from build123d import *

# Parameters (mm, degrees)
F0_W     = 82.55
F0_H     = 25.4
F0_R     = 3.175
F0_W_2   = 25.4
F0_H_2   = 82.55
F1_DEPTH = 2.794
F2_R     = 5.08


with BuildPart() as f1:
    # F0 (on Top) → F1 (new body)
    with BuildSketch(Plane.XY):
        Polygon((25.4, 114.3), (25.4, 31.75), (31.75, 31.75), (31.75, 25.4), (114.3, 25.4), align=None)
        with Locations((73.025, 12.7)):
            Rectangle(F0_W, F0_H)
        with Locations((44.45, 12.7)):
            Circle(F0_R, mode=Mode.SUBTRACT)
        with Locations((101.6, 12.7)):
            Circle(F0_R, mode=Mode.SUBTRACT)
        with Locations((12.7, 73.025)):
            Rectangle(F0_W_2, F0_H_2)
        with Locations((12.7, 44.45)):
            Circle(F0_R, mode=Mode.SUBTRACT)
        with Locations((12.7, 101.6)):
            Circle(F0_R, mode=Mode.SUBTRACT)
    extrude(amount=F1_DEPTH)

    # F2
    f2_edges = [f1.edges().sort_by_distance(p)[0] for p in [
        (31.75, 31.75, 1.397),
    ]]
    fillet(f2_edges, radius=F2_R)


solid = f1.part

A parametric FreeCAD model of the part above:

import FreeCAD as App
import Part
import Sketcher

V = App.Vector
Q = App.Units.Quantity


def edges_at(feature, points):
    """Names of the edges that pass closest to the given points."""
    edges = feature.Shape.Edges
    near = lambda p: min(range(len(edges)), key=lambda i: edges[i].distToShape(Part.Vertex(*p))[0])
    return sorted({f"Edge{near(p) + 1}" for p in points})

doc = App.newDocument("Part")
params = doc.addObject("Spreadsheet::Sheet", "Params")
for row, (alias, value) in enumerate([
    ("sketch1_diameter", "0.25 in"),
    ("sketch1_width", "1 in"),
    ("sketch1_width2", "1.25 in"),
    ("sketch1_width3", "3.25 in"),
    ("pad1_length", "0.11 in"),
    ("fillet_radius", "0.2 in"),
], start=1):
    params.set(f"A{row}", alias)
    params.set(f"B{row}", "=" + value)
    params.setAlias(f"B{row}", alias)

body = doc.addObject("PartDesign::Body", "Body")

sketch1 = doc.addObject("Sketcher::SketchObject", "Sketch")
body.addObject(sketch1)
sketch1.AttachmentSupport = (doc.XY_Plane, [""])
sketch1.MapMode = "FlatFace"
sketch1.addGeometry(Part.LineSegment(V(114.3, 25.4, 0), V(25.4, 114.3, 0)), False)
sketch1.addGeometry(Part.LineSegment(V(25.4, 114.3, 0), V(0, 114.3, 0)), False)
sketch1.addGeometry(Part.LineSegment(V(0, 114.3, 0), V(0, 31.75, 0)), False)
sketch1.addGeometry(Part.LineSegment(V(0, 31.75, 0), V(31.75, 31.75, 0)), False)
sketch1.addGeometry(Part.LineSegment(V(31.75, 31.75, 0), V(31.75, 0, 0)), False)
sketch1.addGeometry(Part.LineSegment(V(31.75, 0, 0), V(114.3, 0, 0)), False)
sketch1.addGeometry(Part.LineSegment(V(114.3, 0, 0), V(114.3, 25.4, 0)), False)
sketch1.addGeometry(Part.Circle(V(44.45, 12.7, 0), V(0, 0, 1), 3.175), False)
sketch1.addGeometry(Part.Circle(V(12.7, 44.45, 0), V(0, 0, 1), 3.175), False)
sketch1.addGeometry(Part.Circle(V(101.6, 12.7, 0), V(0, 0, 1), 3.175), False)
sketch1.addGeometry(Part.Circle(V(12.7, 101.6, 0), V(0, 0, 1), 3.175), False)
sketch1.addConstraint(Sketcher.Constraint("Coincident", 0, 2, 1, 1))
sketch1.addConstraint(Sketcher.Constraint("Coincident", 1, 2, 2, 1))
sketch1.addConstraint(Sketcher.Constraint("Coincident", 2, 2, 3, 1))
sketch1.addConstraint(Sketcher.Constraint("Coincident", 3, 2, 4, 1))
sketch1.addConstraint(Sketcher.Constraint("Coincident", 4, 2, 5, 1))
sketch1.addConstraint(Sketcher.Constraint("Coincident", 5, 2, 6, 1))
sketch1.addConstraint(Sketcher.Constraint("Coincident", 6, 2, 0, 1))
sketch1.addConstraint(Sketcher.Constraint("Horizontal", 1))
sketch1.addConstraint(Sketcher.Constraint("Vertical", 2))
sketch1.addConstraint(Sketcher.Constraint("Horizontal", 3))
sketch1.addConstraint(Sketcher.Constraint("Vertical", 4))
sketch1.addConstraint(Sketcher.Constraint("Horizontal", 5))
sketch1.addConstraint(Sketcher.Constraint("Vertical", 6))
sketch1.addConstraint(Sketcher.Constraint("Equal", 7, 8))
sketch1.addConstraint(Sketcher.Constraint("Equal", 8, 9))
sketch1.addConstraint(Sketcher.Constraint("Equal", 9, 10))
sketch1.addConstraint(Sketcher.Constraint("PointOnObject", 1, 2, -2))
sketch1.addConstraint(Sketcher.Constraint("PointOnObject", 4, 2, -1))
sketch1.addConstraint(Sketcher.Constraint("Horizontal", 7, 3, 9, 3))
sketch1.addConstraint(Sketcher.Constraint("Vertical", 8, 3, 10, 3))
sketch1.addConstraint(Sketcher.Constraint("Equal", 5, 2))
sketch1.addConstraint(Sketcher.Constraint("Equal", 3, 4))
sketch1.addConstraint(Sketcher.Constraint("Equal", 1, 6))
sketch1.addConstraint(Sketcher.Constraint("Diameter", 7, Q("0.25 in")))
sketch1.addConstraint(Sketcher.Constraint("DistanceX", 1, 2, 1, 1, Q("1 in")))
sketch1.addConstraint(Sketcher.Constraint("DistanceX", -1, 1, 9, 3, Q("4 in")))
sketch1.addConstraint(Sketcher.Constraint("DistanceY", -1, 1, 10, 3, Q("4 in")))
sketch1.addConstraint(Sketcher.Constraint("DistanceY", 7, 3, 0, 2, Q("4 in")))
sketch1.addConstraint(Sketcher.Constraint("DistanceX", 8, 3, 5, 2, Q("4 in")))
sketch1.addConstraint(Sketcher.Constraint("DistanceX", 3, 1, 3, 2, Q("1.25 in")))
sketch1.addConstraint(Sketcher.Constraint("DistanceX", 5, 1, 5, 2, Q("3.25 in")))
sketch1.addConstraint(Sketcher.Constraint("DistanceY", 2, 2, 8, 3, Q("0.5 in")))
sketch1.addConstraint(Sketcher.Constraint("DistanceX", 3, 2, 7, 3, Q("0.5 in")))
sketch1.setExpression("Constraints[23]", "Params.sketch1_diameter")
sketch1.setExpression("Constraints[24]", "Params.sketch1_width")
sketch1.setExpression("Constraints[29]", "Params.sketch1_width2")
sketch1.setExpression("Constraints[30]", "Params.sketch1_width3")
pad1 = doc.addObject("PartDesign::Pad", "Pad")
body.addObject(pad1)
pad1.Profile = sketch1
pad1.setExpression("Length", "Params.pad1_length")
doc.recompute()

fillet = doc.addObject("PartDesign::Fillet", "Fillet")
body.addObject(fillet)
fillet.Base = (pad1, edges_at(pad1, [(31.75, 31.75, 1.397)]))
fillet.setExpression("Radius", "Params.fillet_radius")

doc.recompute()
